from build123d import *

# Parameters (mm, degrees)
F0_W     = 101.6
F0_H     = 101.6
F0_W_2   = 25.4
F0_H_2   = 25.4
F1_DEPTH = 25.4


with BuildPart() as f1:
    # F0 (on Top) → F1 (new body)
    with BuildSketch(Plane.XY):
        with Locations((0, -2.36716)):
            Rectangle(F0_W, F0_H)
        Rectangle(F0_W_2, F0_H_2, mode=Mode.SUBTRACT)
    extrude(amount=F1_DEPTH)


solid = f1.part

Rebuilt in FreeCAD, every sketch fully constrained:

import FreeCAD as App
import Part
import Sketcher
Q = App.Units.Quantity

doc = App.newDocument("Part")
params = doc.addObject("Spreadsheet::Sheet", "Params")
for row, (alias, value) in enumerate([
    ("sketch1_width", "4 in"),
    ("sketch1_width2", "1 in"),
    ("pad1_length", "1 in"),
], start=1):
    params.set(f"A{row}", alias)
    params.set(f"B{row}", "=" + value)
    params.setAlias(f"B{row}", alias)

body = doc.addObject("PartDesign::Body", "Body")

# Sketch on XY plane
sketch1 = body.newObject("Sketcher::SketchObject", "Sketch")
sketch1.AttachmentSupport = (doc.getObject("XY_Plane"), [""])
sketch1.MapMode = "FlatFace"
sketch1.addGeometry([
    Part.LineSegment(App.Vector(-50.8, 48.43284, 0), App.Vector(-50.8, -53.16716, 0)),  # 0
    Part.LineSegment(App.Vector(-50.8, -53.16716, 0), App.Vector(50.8, -53.16716, 0)),  # 1
    Part.LineSegment(App.Vector(50.8, -53.16716, 0), App.Vector(50.8, 48.43284, 0)),  # 2
    Part.LineSegment(App.Vector(50.8, 48.43284, 0), App.Vector(-50.8, 48.43284, 0)),  # 3
    Part.LineSegment(App.Vector(12.7, -12.7, 0), App.Vector(-12.7, -12.7, 0)),  # 4
    Part.LineSegment(App.Vector(-12.7, -12.7, 0), App.Vector(-12.7, 12.7, 0)),  # 5
    Part.LineSegment(App.Vector(-12.7, 12.7, 0), App.Vector(12.7, 12.7, 0)),  # 6
    Part.LineSegment(App.Vector(12.7, 12.7, 0), App.Vector(12.7, -12.7, 0)),  # 7
], False)
sketch1.addConstraint([
    Sketcher.Constraint("Coincident", 0, 2, 1, 1),
    Sketcher.Constraint("Coincident", 1, 2, 2, 1),
    Sketcher.Constraint("Coincident", 2, 2, 3, 1),
    Sketcher.Constraint("Coincident", 3, 2, 0, 1),
    Sketcher.Constraint("Coincident", 4, 2, 5, 1),
    Sketcher.Constraint("Coincident", 5, 2, 6, 1),
    Sketcher.Constraint("Coincident", 6, 2, 7, 1),
    Sketcher.Constraint("Coincident", 7, 2, 4, 1),
    Sketcher.Constraint("Vertical", 0),
    Sketcher.Constraint("Horizontal", 1),
    Sketcher.Constraint("Vertical", 2),
    Sketcher.Constraint("Horizontal", 3),
    Sketcher.Constraint("Horizontal", 4),
    Sketcher.Constraint("Vertical", 5),
    Sketcher.Constraint("Horizontal", 6),
    Sketcher.Constraint("Vertical", 7),
    Sketcher.Constraint("Symmetric", 4, 2, 6, 2, -1, 1),
    Sketcher.Constraint("Equal", 3, 0),
    Sketcher.Constraint("Equal", 6, 5),
    Sketcher.Constraint("DistanceX", 1, 1, 1, 2, Q("4 in")),
    Sketcher.Constraint("DistanceX", 4, 2, 4, 1, Q("1 in")),
    Sketcher.Constraint("DistanceX", 0, 2, -1, 1, Q("2 in")),
    Sketcher.Constraint("DistanceY", 0, 2, -1, 1, Q("53.16716 mm")),
])
sketch1.setExpression("Constraints[19]", "Params.sketch1_width")
sketch1.setExpression("Constraints[20]", "Params.sketch1_width2")
pad1 = body.newObject("PartDesign::Pad", "Pad")
pad1.Profile = sketch1
pad1.setExpression("Length", "Params.pad1_length")

doc.recompute()
